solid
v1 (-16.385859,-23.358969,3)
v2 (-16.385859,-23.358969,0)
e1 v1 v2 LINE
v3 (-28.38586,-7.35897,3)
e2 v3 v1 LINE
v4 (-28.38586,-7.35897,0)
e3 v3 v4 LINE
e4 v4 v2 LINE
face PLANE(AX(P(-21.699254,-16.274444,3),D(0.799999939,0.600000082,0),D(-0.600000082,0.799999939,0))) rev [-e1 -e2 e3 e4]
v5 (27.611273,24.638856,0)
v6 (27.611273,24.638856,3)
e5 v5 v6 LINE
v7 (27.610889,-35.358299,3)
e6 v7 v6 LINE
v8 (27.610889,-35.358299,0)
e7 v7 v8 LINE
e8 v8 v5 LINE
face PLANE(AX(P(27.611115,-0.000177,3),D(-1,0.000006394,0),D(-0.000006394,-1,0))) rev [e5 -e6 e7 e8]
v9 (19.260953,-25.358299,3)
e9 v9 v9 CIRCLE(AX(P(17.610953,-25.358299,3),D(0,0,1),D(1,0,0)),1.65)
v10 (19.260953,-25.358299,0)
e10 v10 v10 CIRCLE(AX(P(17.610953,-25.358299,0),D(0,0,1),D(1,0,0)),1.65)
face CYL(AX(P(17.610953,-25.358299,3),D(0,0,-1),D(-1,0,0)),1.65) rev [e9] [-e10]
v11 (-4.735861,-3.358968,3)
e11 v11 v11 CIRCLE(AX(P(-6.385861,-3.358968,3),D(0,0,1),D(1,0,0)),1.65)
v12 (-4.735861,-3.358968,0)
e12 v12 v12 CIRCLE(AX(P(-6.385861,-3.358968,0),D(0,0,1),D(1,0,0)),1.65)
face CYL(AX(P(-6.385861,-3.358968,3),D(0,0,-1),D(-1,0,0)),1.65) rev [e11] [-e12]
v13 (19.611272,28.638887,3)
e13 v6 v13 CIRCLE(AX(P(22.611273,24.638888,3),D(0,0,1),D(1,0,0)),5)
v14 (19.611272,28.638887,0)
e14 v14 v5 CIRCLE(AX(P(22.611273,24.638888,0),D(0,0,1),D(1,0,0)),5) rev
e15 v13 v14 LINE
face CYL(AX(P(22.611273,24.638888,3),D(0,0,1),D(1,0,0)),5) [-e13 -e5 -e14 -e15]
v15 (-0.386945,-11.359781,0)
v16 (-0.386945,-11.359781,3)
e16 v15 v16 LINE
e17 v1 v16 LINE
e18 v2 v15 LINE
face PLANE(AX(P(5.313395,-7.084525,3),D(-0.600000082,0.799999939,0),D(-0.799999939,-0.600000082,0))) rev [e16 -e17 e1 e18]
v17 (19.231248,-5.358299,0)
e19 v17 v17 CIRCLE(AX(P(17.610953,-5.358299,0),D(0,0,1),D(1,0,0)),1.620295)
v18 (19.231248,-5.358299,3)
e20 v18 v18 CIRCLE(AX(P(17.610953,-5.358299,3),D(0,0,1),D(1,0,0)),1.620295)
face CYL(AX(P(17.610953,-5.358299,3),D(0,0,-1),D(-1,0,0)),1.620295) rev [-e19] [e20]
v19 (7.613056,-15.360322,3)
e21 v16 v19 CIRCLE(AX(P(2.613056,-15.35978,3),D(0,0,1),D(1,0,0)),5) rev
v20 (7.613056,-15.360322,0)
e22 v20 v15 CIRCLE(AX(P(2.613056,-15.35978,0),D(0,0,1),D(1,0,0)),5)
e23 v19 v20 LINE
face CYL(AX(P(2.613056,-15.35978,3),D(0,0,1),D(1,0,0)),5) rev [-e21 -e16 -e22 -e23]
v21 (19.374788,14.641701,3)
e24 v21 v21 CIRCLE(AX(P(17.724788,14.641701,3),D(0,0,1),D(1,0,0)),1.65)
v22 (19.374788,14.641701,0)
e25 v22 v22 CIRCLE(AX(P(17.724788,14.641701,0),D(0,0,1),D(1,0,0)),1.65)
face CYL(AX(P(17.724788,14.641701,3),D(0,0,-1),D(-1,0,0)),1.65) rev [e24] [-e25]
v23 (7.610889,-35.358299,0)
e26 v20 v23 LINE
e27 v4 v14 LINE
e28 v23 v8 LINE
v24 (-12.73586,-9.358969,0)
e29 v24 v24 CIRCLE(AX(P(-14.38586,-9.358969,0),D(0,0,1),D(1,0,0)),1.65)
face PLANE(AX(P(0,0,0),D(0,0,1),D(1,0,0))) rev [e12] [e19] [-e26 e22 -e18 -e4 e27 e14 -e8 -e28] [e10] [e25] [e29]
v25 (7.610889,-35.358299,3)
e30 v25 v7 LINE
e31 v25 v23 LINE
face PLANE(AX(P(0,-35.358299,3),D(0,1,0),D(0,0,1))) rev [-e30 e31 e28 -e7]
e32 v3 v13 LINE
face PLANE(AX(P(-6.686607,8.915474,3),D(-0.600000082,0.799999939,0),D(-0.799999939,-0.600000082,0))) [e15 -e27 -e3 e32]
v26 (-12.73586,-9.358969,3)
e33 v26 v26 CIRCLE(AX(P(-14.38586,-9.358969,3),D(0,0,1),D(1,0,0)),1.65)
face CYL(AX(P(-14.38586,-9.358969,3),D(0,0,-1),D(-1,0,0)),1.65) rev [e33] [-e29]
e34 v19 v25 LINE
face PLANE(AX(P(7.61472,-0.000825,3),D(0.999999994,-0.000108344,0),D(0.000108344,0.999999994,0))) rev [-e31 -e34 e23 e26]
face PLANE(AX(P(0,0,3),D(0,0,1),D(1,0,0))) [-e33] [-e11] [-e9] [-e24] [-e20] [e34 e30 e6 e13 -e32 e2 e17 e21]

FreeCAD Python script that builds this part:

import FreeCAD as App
import Part
import Sketcher

V = App.Vector


def edges_at(feature, points):
    """Names of the edges that pass closest to the given points."""
    edges = feature.Shape.Edges
    near = lambda p: min(range(len(edges)), key=lambda i: edges[i].distToShape(Part.Vertex(*p))[0])
    return sorted({f"Edge{near(p) + 1}" for p in points})

doc = App.newDocument("Part")
body = doc.addObject("PartDesign::Body", "Body")

sketch1 = doc.addObject("Sketcher::SketchObject", "Sketch")
body.addObject(sketch1)
sketch1.AttachmentSupport = (doc.XY_Plane, [""])
sketch1.MapMode = "FlatFace"
sketch1.addGeometry([
    Part.LineSegment(V(27.611337, 34.638937, 0), V(-4.385862, 10.641032, 0)),
    Part.LineSegment(V(-4.385862, 10.641032, 0), V(-28.38586, -7.35897, 0)),
    Part.LineSegment(V(-28.38586, -7.35897, 0), V(-16.385859, -23.358969, 0)),
    Part.LineSegment(V(-16.385859, -23.358969, 0), V(7.614139, -5.358966, 0)),
    Part.LineSegment(V(7.614139, -5.358966, 0), V(7.610889, -35.358299, 0)),
    Part.LineSegment(V(7.610889, -35.358299, 0), V(27.610889, -35.358299, 0)),
    Part.LineSegment(V(27.610889, -35.358299, 0), V(27.611337, 34.638937, 0)),
    Part.Circle(V(17.610953, -25.358299, 0), V(0, 0, 1), 1.65),
    Part.Circle(V(-14.38586, -9.358969, 0), V(0, 0, 1), 1.65),
    Part.Circle(V(17.610953, -5.358299, 0), V(0, 0, 1), 1.620295),
    Part.Circle(V(17.724788, 14.641701, 0), V(0, 0, 1), 1.65),
    Part.Circle(V(-6.385861, -3.358968, 0), V(0, 0, 1), 1.65),
], False)
sketch1.addConstraint([
    Sketcher.Constraint("Coincident", 0, 2, 1, 1),
    Sketcher.Constraint("Coincident", 1, 2, 2, 1),
    Sketcher.Constraint("Coincident", 2, 2, 3, 1),
    Sketcher.Constraint("Coincident", 3, 2, 4, 1),
    Sketcher.Constraint("Coincident", 4, 2, 5, 1),
    Sketcher.Constraint("Coincident", 5, 2, 6, 1),
    Sketcher.Constraint("Coincident", 6, 2, 0, 1),
    Sketcher.Constraint("Horizontal", 5),
    Sketcher.Constraint("Equal", 7, 8),
    Sketcher.Constraint("Equal", 8, 10),
    Sketcher.Constraint("Equal", 10, 11),
    Sketcher.Constraint("Parallel", 0, 1),
    Sketcher.Constraint("Perpendicular", 1, 2),
    Sketcher.Constraint("Perpendicular", 2, 3),
    Sketcher.Constraint("Vertical", 7, 3, 9, 3),
    Sketcher.Constraint("Equal", 1, 3),
    Sketcher.Constraint("Diameter", 7, 3.3),
    Sketcher.Constraint("DistanceX", 5, 1, 5, 2, 20.0),
    Sketcher.Constraint("Distance", 1, 30.0),
    Sketcher.Constraint("Distance", 2, 20.0),
    Sketcher.Constraint("DistanceY", 7, 3, 9, 3, 20.0),
    Sketcher.Constraint("DistanceY", 9, 3, 10, 3, 20.0),
    Sketcher.Constraint("DistanceX", 8, 3, 11, 3, 7.999999),
    Sketcher.Constraint("DistanceY", 8, 3, 11, 3, 6.000001),
    Sketcher.Constraint("DistanceX", 11, 3, 0, 2, 1.999999),
    Sketcher.Constraint("DistanceY", 11, 3, 0, 2, 14.0),
    Sketcher.Constraint("DistanceX", 1, 2, 8, 3, 14.0),
    Sketcher.Constraint("DistanceY", 4, 2, 7, 3, 10.0),
    Sketcher.Constraint("Diameter", 9, 3.240591),
    Sketcher.Constraint("Distance", 0, 39.996502),
    Sketcher.Constraint("DistanceY", 7, 3, -1, 1, 25.358299),
    Sketcher.Constraint("DistanceX", 8, 3, -1, 1, 14.38586),
    Sketcher.Constraint("DistanceY", 8, 3, -1, 1, 9.358969),
    Sketcher.Constraint("DistanceX", -1, 1, 10, 3, 17.724788),
    Sketcher.Constraint("DistanceX", -1, 1, 4, 2, 7.610889),
    Sketcher.Constraint("DistanceX", 2, 2, 7, 3, 33.996812),
])
pad1 = doc.addObject("PartDesign::Pad", "Pad")
body.addObject(pad1)
pad1.Profile = sketch1
pad1.Length = 3
doc.recompute()

fillet = doc.addObject("PartDesign::Fillet", "Fillet")
body.addObject(fillet)
fillet.Base = (pad1, edges_at(pad1, [(27.611, 34.639, 1.5), (7.614, -5.359, 1.5)]))
fillet.Radius = 5

doc.recompute()
